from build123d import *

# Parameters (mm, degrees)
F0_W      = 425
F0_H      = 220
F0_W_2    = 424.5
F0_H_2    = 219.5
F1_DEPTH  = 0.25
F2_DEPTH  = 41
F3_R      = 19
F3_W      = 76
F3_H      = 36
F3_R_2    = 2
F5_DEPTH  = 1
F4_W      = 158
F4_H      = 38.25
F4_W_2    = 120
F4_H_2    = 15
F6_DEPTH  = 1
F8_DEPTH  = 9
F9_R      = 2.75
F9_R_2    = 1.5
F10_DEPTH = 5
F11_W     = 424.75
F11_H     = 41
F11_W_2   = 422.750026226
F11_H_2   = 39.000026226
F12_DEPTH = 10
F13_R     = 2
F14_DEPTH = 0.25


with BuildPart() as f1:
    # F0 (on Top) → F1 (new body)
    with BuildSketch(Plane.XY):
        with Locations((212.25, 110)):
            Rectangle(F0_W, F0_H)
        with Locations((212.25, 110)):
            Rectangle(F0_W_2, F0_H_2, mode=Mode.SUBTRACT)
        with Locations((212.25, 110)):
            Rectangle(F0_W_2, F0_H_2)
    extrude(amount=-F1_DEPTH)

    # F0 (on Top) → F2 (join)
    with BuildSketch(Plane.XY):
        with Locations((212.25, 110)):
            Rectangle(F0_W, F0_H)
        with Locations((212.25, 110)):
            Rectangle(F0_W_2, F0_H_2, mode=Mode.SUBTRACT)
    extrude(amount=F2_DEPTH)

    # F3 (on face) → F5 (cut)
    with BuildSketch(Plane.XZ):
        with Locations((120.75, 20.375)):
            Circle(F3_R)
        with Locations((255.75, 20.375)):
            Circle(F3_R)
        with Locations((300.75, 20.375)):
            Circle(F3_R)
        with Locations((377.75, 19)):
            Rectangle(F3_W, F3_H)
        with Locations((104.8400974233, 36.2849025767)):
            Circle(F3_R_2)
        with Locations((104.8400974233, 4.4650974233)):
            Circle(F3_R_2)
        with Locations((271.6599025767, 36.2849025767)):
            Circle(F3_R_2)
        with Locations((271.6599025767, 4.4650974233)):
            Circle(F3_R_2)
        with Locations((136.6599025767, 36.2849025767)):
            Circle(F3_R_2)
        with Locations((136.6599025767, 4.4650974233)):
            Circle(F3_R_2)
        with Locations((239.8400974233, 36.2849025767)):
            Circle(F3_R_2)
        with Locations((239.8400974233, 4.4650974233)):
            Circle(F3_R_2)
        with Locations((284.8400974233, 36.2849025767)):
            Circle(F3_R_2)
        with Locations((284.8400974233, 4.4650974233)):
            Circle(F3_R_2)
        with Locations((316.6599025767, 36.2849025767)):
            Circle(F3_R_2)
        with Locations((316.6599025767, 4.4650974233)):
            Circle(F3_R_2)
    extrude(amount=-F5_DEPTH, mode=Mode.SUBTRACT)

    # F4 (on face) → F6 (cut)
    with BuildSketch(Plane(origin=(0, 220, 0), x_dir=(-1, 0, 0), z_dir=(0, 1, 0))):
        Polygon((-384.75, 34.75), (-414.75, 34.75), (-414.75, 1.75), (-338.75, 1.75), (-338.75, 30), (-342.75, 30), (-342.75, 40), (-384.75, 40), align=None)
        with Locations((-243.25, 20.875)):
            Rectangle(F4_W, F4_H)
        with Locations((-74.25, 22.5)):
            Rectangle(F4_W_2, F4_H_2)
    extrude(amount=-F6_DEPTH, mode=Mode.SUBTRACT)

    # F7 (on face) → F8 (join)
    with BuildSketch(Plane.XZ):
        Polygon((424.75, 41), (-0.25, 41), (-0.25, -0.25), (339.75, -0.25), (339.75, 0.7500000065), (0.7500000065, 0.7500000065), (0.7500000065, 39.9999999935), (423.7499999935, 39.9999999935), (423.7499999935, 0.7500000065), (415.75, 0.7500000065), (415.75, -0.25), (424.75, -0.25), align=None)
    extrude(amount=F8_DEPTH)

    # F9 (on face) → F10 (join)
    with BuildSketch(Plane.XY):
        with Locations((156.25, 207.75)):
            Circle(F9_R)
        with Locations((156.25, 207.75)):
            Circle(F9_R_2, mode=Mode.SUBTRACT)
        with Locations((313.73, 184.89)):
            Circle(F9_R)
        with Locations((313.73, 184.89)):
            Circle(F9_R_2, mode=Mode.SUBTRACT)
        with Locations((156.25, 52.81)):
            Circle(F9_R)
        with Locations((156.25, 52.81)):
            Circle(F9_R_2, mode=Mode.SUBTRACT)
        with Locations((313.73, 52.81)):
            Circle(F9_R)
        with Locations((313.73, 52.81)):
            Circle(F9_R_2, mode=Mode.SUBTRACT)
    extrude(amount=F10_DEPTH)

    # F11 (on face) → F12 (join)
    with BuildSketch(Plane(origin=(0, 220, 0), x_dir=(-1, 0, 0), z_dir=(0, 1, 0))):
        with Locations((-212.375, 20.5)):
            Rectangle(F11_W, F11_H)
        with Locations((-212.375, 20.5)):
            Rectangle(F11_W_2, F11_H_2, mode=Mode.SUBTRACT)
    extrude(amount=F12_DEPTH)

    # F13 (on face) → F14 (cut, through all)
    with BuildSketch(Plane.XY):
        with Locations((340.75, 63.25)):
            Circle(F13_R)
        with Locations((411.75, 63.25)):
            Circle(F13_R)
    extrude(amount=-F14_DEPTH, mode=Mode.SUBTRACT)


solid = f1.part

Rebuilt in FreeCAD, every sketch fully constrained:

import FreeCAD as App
import Part
import Sketcher
from FreeCAD import Vector
Q = App.Units.Quantity

doc = App.newDocument("Part")
body = doc.addObject("PartDesign::Body", "Body")

sketch1 = doc.addObject("Sketcher::SketchObject", "Sketch")
body.addObject(sketch1)
sketch1.AttachmentSupport = (doc.XY_Plane, [""])
sketch1.MapMode = "FlatFace"
sketch1.addGeometry([
    Part.LineSegment(Vector(-0.25, 220, 0), Vector(-0.25, 0, 0)),
    Part.LineSegment(Vector(-0.25, 0, 0), Vector(424.75, 0, 0)),
    Part.LineSegment(Vector(424.75, 0, 0), Vector(424.75, 220, 0)),
    Part.LineSegment(Vector(424.75, 220, 0), Vector(-0.25, 220, 0)),
], False)
sketch1.addConstraint([
    Sketcher.Constraint("Coincident", 0, 2, 1, 1),
    Sketcher.Constraint("Coincident", 1, 2, 2, 1),
    Sketcher.Constraint("Coincident", 2, 2, 3, 1),
    Sketcher.Constraint("Coincident", 3, 2, 0, 1),
    Sketcher.Constraint("Vertical", 0),
    Sketcher.Constraint("Horizontal", 1),
    Sketcher.Constraint("Vertical", 2),
    Sketcher.Constraint("Horizontal", 3),
    Sketcher.Constraint("PointOnObject", 0, 2, -1),
    Sketcher.Constraint("DistanceX", 1, 1, 1, 2, Q("425 mm")),
    Sketcher.Constraint("DistanceY", 0, 2, 0, 1, Q("220 mm")),
    Sketcher.Constraint("DistanceX", 0, 2, -1, 1, Q("0.25 mm")),
])
pad1 = doc.addObject("PartDesign::Pad", "Pad")
body.addObject(pad1)
pad1.Profile = sketch1
pad1.Length = 0.25
pad1.Reversed = True

sketch2 = doc.addObject("Sketcher::SketchObject", "Sketch001")
body.addObject(sketch2)
sketch2.AttachmentSupport = (doc.XY_Plane, [""])
sketch2.MapMode = "FlatFace"
sketch2.addGeometry([
    Part.LineSegment(Vector(-0.25, 220, 0), Vector(-0.25, 0, 0)),
    Part.LineSegment(Vector(-0.25, 0, 0), Vector(424.75, 0, 0)),
    Part.LineSegment(Vector(424.75, 0, 0), Vector(424.75, 220, 0)),
    Part.LineSegment(Vector(424.75, 220, 0), Vector(-0.25, 220, 0)),
    Part.LineSegment(Vector(424.5, 0.25, 0), Vector(0, 0.25, 0)),
    Part.LineSegment(Vector(0, 0.25, 0), Vector(0, 219.75, 0)),
    Part.LineSegment(Vector(0, 219.75, 0), Vector(424.5, 219.75, 0)),
    Part.LineSegment(Vector(424.5, 219.75, 0), Vector(424.5, 0.25, 0)),
], False)
sketch2.addConstraint([
    Sketcher.Constraint("Coincident", 0, 2, 1, 1),
    Sketcher.Constraint("Coincident", 1, 2, 2, 1),
    Sketcher.Constraint("Coincident", 2, 2, 3, 1),
    Sketcher.Constraint("Coincident", 3, 2, 0, 1),
    Sketcher.Constraint("Coincident", 4, 2, 5, 1),
    Sketcher.Constraint("Coincident", 5, 2, 6, 1),
    Sketcher.Constraint("Coincident", 6, 2, 7, 1),
    Sketcher.Constraint("Coincident", 7, 2, 4, 1),
    Sketcher.Constraint("Vertical", 0),
    Sketcher.Constraint("Horizontal", 1),
    Sketcher.Constraint("Vertical", 2),
    Sketcher.Constraint("Horizontal", 3),
    Sketcher.Constraint("Horizontal", 4),
    Sketcher.Constraint("Vertical", 5),
    Sketcher.Constraint("Horizontal", 6),
    Sketcher.Constraint("Vertical", 7),
    Sketcher.Constraint("PointOnObject", 0, 2, -1),
    Sketcher.Constraint("PointOnObject", 4, 2, -2),
    Sketcher.Constraint("DistanceX", 1, 1, 1, 2, Q("425 mm")),
    Sketcher.Constraint("DistanceY", 0, 2, 0, 1, Q("220 mm")),
    Sketcher.Constraint("DistanceX", 4, 2, 4, 1, Q("424.5 mm")),
    Sketcher.Constraint("DistanceY", 5, 1, 5, 2, Q("219.5 mm")),
    Sketcher.Constraint("DistanceX", 0, 2, -1, 1, Q("0.25 mm")),
    Sketcher.Constraint("DistanceY", -1, 1, 4, 2, Q("0.25 mm")),
])
pad2 = doc.addObject("PartDesign::Pad", "Pad001")
body.addObject(pad2)
pad2.Profile = sketch2
pad2.Length = 41

sketch3 = doc.addObject("Sketcher::SketchObject", "Sketch002")
body.addObject(sketch3)
sketch3.AttachmentSupport = (doc.XZ_Plane, [""])
sketch3.MapMode = "FlatFace"
sketch3.addGeometry([
    Part.Circle(Vector(120.75, 20.375, 0), Vector(0, 0, 1), 19),
    Part.Circle(Vector(255.75, 20.375, 0), Vector(0, 0, 1), 19),
    Part.Circle(Vector(300.75, 20.375, 0), Vector(0, 0, 1), 19),
    Part.LineSegment(Vector(339.75, 37, 0), Vector(339.75, 1, 0)),
    Part.LineSegment(Vector(339.75, 1, 0), Vector(415.75, 1, 0)),
    Part.LineSegment(Vector(415.75, 1, 0), Vector(415.75, 37, 0)),
    Part.LineSegment(Vector(415.75, 37, 0), Vector(339.75, 37, 0)),
    Part.Circle(Vector(104.840097, 36.284903, 0), Vector(0, 0, 1), 2),
    Part.Circle(Vector(104.840097, 4.465097, 0), Vector(0, 0, 1), 2),
    Part.Circle(Vector(271.659903, 36.284903, 0), Vector(0, 0, 1), 2),
    Part.Circle(Vector(271.659903, 4.465097, 0), Vector(0, 0, 1), 2),
    Part.Circle(Vector(136.659903, 36.284903, 0), Vector(0, 0, 1), 2),
    Part.Circle(Vector(136.659903, 4.465097, 0), Vector(0, 0, 1), 2),
    Part.Circle(Vector(239.840097, 36.284903, 0), Vector(0, 0, 1), 2),
    Part.Circle(Vector(239.840097, 4.465097, 0), Vector(0, 0, 1), 2),
    Part.Circle(Vector(284.840097, 36.284903, 0), Vector(0, 0, 1), 2),
    Part.Circle(Vector(284.840097, 4.465097, 0), Vector(0, 0, 1), 2),
    Part.Circle(Vector(316.659903, 36.284903, 0), Vector(0, 0, 1), 2),
    Part.Circle(Vector(316.659903, 4.465097, 0), Vector(0, 0, 1), 2),
], False)
sketch3.addConstraint([
    Sketcher.Constraint("Coincident", 3, 2, 4, 1),
    Sketcher.Constraint("Coincident", 4, 2, 5, 1),
    Sketcher.Constraint("Coincident", 5, 2, 6, 1),
    Sketcher.Constraint("Coincident", 6, 2, 3, 1),
    Sketcher.Constraint("Vertical", 3),
    Sketcher.Constraint("Horizontal", 4),
    Sketcher.Constraint("Vertical", 5),
    Sketcher.Constraint("Horizontal", 6),
    Sketcher.Constraint("Equal", 0, 1),
    Sketcher.Constraint("Equal", 1, 2),
    Sketcher.Constraint("Equal", 7, 8),
    Sketcher.Constraint("Equal", 8, 9),
    Sketcher.Constraint("Equal", 9, 10),
    Sketcher.Constraint("Equal", 10, 11),
    Sketcher.Constraint("Equal", 11, 12),
    Sketcher.Constraint("Equal", 12, 13),
    Sketcher.Constraint("Equal", 13, 14),
    Sketcher.Constraint("Equal", 14, 15),
    Sketcher.Constraint("Equal", 15, 16),
    Sketcher.Constraint("Equal", 16, 17),
    Sketcher.Constraint("Equal", 17, 18),
    Sketcher.Constraint("Horizontal", 0, 3, 1, 3),
    Sketcher.Constraint("Horizontal", 1, 3, 2, 3),
    Sketcher.Constraint("Horizontal", 7, 3, 9, 3),
    Sketcher.Constraint("Horizontal", 8, 3, 10, 3),
    Sketcher.Constraint("Horizontal", 9, 3, 11, 3),
    Sketcher.Constraint("Horizontal", 10, 3, 12, 3),
    Sketcher.Constraint("Horizontal", 11, 3, 13, 3),
    Sketcher.Constraint("Horizontal", 12, 3, 14, 3),
    Sketcher.Constraint("Horizontal", 13, 3, 15, 3),
    Sketcher.Constraint("Horizontal", 14, 3, 16, 3),
    Sketcher.Constraint("Horizontal", 15, 3, 17, 3),
    Sketcher.Constraint("Horizontal", 16, 3, 18, 3),
    Sketcher.Constraint("Vertical", 7, 3, 8, 3),
    Sketcher.Constraint("Vertical", 9, 3, 10, 3),
    Sketcher.Constraint("Vertical", 11, 3, 12, 3),
    Sketcher.Constraint("Vertical", 13, 3, 14, 3),
    Sketcher.Constraint("Vertical", 15, 3, 16, 3),
    Sketcher.Constraint("Vertical", 17, 3, 18, 3),
    Sketcher.Constraint("Diameter", 0, Q("38 mm")),
    Sketcher.Constraint("Diameter", 7, Q("4 mm")),
    Sketcher.Constraint("DistanceX", 4, 1, 4, 2, Q("76 mm")),
    Sketcher.Constraint("DistanceY", 3, 2, 3, 1, Q("36 mm")),
    Sketcher.Constraint("DistanceY", -1, 1, 3, 2, Q("1 mm")),
    Sketcher.Constraint("DistanceX", 0, 3, 1, 3, Q("135 mm")),
    Sketcher.Constraint("DistanceX", 1, 3, 2, 3, Q("45 mm")),
    Sketcher.Constraint("DistanceX", 11, 3, 9, 3, Q("135 mm")),
    Sketcher.Constraint("DistanceX", 13, 3, 15, 3, Q("45 mm")),
    Sketcher.Constraint("DistanceX", 9, 3, 17, 3, Q("45 mm")),
    Sketcher.Constraint("DistanceX", 2, 3, 3, 2, Q("39 mm")),
    Sketcher.Constraint("DistanceX", -1, 1, 0, 3, Q("120.75 mm")),
    Sketcher.Constraint("DistanceY", -1, 1, 0, 3, Q("20.375 mm")),
    Sketcher.Constraint("DistanceX", -1, 1, 7, 3, Q("104.840097 mm")),
    Sketcher.Constraint("DistanceY", -1, 1, 7, 3, Q("36.284903 mm")),
    Sketcher.Constraint("DistanceY", -1, 1, 8, 3, Q("4.465097 mm")),
    Sketcher.Constraint("DistanceX", -1, 1, 9, 3, Q("271.659903 mm")),
    Sketcher.Constraint("DistanceX", -1, 1, 13, 3, Q("239.840097 mm")),
])
pocket1 = doc.addObject("PartDesign::Pocket", "Pocket")
body.addObject(pocket1)
pocket1.Profile = sketch3
pocket1.Length = 1

sketch4 = doc.addObject("Sketcher::SketchObject", "Sketch003")
body.addObject(sketch4)
sketch4.AttachmentSupport = (doc.XZ_Plane, [""])
sketch4.MapMode = "FlatFace"
sketch4.AttachmentOffset = App.Placement(Vector(0, 0, -220), App.Rotation())
sketch4.addGeometry([
    Part.LineSegment(Vector(384.75, 34.75, 0), Vector(414.75, 34.75, 0)),
    Part.LineSegment(Vector(414.75, 34.75, 0), Vector(414.75, 1.75, 0)),
    Part.LineSegment(Vector(414.75, 1.75, 0), Vector(338.75, 1.75, 0)),
    Part.LineSegment(Vector(338.75, 1.75, 0), Vector(338.75, 30, 0)),
    Part.LineSegment(Vector(338.75, 30, 0), Vector(342.75, 30, 0)),
    Part.LineSegment(Vector(342.75, 30, 0), Vector(342.75, 40, 0)),
    Part.LineSegment(Vector(342.75, 40, 0), Vector(384.75, 40, 0)),
    Part.LineSegment(Vector(384.75, 40, 0), Vector(384.75, 34.75, 0)),
    Part.LineSegment(Vector(322.25, 40, 0), Vector(322.25, 1.75, 0)),
    Part.LineSegment(Vector(322.25, 1.75, 0), Vector(164.25, 1.75, 0)),
    Part.LineSegment(Vector(164.25, 1.75, 0), Vector(164.25, 40, 0)),
    Part.LineSegment(Vector(164.25, 40, 0), Vector(322.25, 40, 0)),
    Part.LineSegment(Vector(134.25, 30, 0), Vector(134.25, 15, 0)),
    Part.LineSegment(Vector(134.25, 15, 0), Vector(14.25, 15, 0)),
    Part.LineSegment(Vector(14.25, 15, 0), Vector(14.25, 30, 0)),
    Part.LineSegment(Vector(14.25, 30, 0), Vector(134.25, 30, 0)),
], False)
sketch4.addConstraint([
    Sketcher.Constraint("Coincident", 0, 2, 1, 1),
    Sketcher.Constraint("Coincident", 1, 2, 2, 1),
    Sketcher.Constraint("Coincident", 2, 2, 3, 1),
    Sketcher.Constraint("Coincident", 3, 2, 4, 1),
    Sketcher.Constraint("Coincident", 4, 2, 5, 1),
    Sketcher.Constraint("Coincident", 5, 2, 6, 1),
    Sketcher.Constraint("Coincident", 6, 2, 7, 1),
    Sketcher.Constraint("Coincident", 7, 2, 0, 1),
    Sketcher.Constraint("Coincident", 8, 2, 9, 1),
    Sketcher.Constraint("Coincident", 9, 2, 10, 1),
    Sketcher.Constraint("Coincident", 10, 2, 11, 1),
    Sketcher.Constraint("Coincident", 11, 2, 8, 1),
    Sketcher.Constraint("Coincident", 12, 2, 13, 1),
    Sketcher.Constraint("Coincident", 13, 2, 14, 1),
    Sketcher.Constraint("Coincident", 14, 2, 15, 1),
    Sketcher.Constraint("Coincident", 15, 2, 12, 1),
    Sketcher.Constraint("Horizontal", 0),
    Sketcher.Constraint("Vertical", 1),
    Sketcher.Constraint("Horizontal", 2),
    Sketcher.Constraint("Vertical", 3),
    Sketcher.Constraint("Horizontal", 4),
    Sketcher.Constraint("Vertical", 5),
    Sketcher.Constraint("Horizontal", 6),
    Sketcher.Constraint("Vertical", 7),
    Sketcher.Constraint("Vertical", 8),
    Sketcher.Constraint("Horizontal", 9),
    Sketcher.Constraint("Vertical", 10),
    Sketcher.Constraint("Horizontal", 11),
    Sketcher.Constraint("Vertical", 12),
    Sketcher.Constraint("Horizontal", 13),
    Sketcher.Constraint("Vertical", 14),
    Sketcher.Constraint("Horizontal", 15),
    Sketcher.Constraint("Horizontal", 2, 2, 8, 2),
    Sketcher.Constraint("Horizontal", 6, 2, 10, 2),
    Sketcher.Constraint("Horizontal", 4, 2, 14, 2),
    Sketcher.Constraint("DistanceX", 0, 1, 0, 2, Q("30 mm")),
    Sketcher.Constraint("DistanceX", 2, 2, 2, 1, Q("76 mm")),
    Sketcher.Constraint("DistanceX", 4, 1, 4, 2, Q("4 mm")),
    Sketcher.Constraint("DistanceX", 9, 2, 9, 1, Q("158 mm")),
    Sketcher.Constraint("DistanceX", 13, 2, 13, 1, Q("120 mm")),
    Sketcher.Constraint("DistanceY", 1, 2, 1, 1, Q("33 mm")),
    Sketcher.Constraint("DistanceY", 5, 1, 5, 2, Q("10 mm")),
    Sketcher.Constraint("DistanceY", 12, 2, 12, 1, Q("15 mm")),
    Sketcher.Constraint("DistanceY", -1, 1, 3, 2, Q("30 mm")),
    Sketcher.Constraint("DistanceX", 12, 2, 9, 2, Q("30 mm")),
    Sketcher.Constraint("DistanceY", 3, 1, 3, 2, Q("28.25 mm")),
    Sketcher.Constraint("DistanceX", 8, 2, 2, 2, Q("16.5 mm")),
    Sketcher.Constraint("DistanceX", -1, 1, 0, 2, Q("414.75 mm")),
])
pocket2 = doc.addObject("PartDesign::Pocket", "Pocket001")
body.addObject(pocket2)
pocket2.Profile = sketch4
pocket2.Length = 1
pocket2.Reversed = True

sketch5 = doc.addObject("Sketcher::SketchObject", "Sketch004")
body.addObject(sketch5)
sketch5.AttachmentSupport = (doc.XZ_Plane, [""])
sketch5.MapMode = "FlatFace"
sketch5.addGeometry([
    Part.LineSegment(Vector(424.75, 41, 0), Vector(-0.25, 41, 0)),
    Part.LineSegment(Vector(-0.25, 41, 0), Vector(-0.25, -0.25, 0)),
    Part.LineSegment(Vector(-0.25, -0.25, 0), Vector(339.75, -0.25, 0)),
    Part.LineSegment(Vector(339.75, -0.25, 0), Vector(339.75, 0.75, 0)),
    Part.LineSegment(Vector(339.75, 0.75, 0), Vector(0.75, 0.75, 0)),
    Part.LineSegment(Vector(0.75, 0.75, 0), Vector(0.75, 40, 0)),
    Part.LineSegment(Vector(0.75, 40, 0), Vector(423.75, 40, 0)),
    Part.LineSegment(Vector(423.75, 40, 0), Vector(423.75, 0.75, 0)),
    Part.LineSegment(Vector(423.75, 0.75, 0), Vector(415.75, 0.75, 0)),
    Part.LineSegment(Vector(415.75, 0.75, 0), Vector(415.75, -0.25, 0)),
    Part.LineSegment(Vector(415.75, -0.25, 0), Vector(424.75, -0.25, 0)),
    Part.LineSegment(Vector(424.75, -0.25, 0), Vector(424.75, 41, 0)),
], False)
sketch5.addConstraint([
    Sketcher.Constraint("Coincident", 0, 2, 1, 1),
    Sketcher.Constraint("Coincident", 1, 2, 2, 1),
    Sketcher.Constraint("Coincident", 2, 2, 3, 1),
    Sketcher.Constraint("Coincident", 3, 2, 4, 1),
    Sketcher.Constraint("Coincident", 4, 2, 5, 1),
    Sketcher.Constraint("Coincident", 5, 2, 6, 1),
    Sketcher.Constraint("Coincident", 6, 2, 7, 1),
    Sketcher.Constraint("Coincident", 7, 2, 8, 1),
    Sketcher.Constraint("Coincident", 8, 2, 9, 1),
    Sketcher.Constraint("Coincident", 9, 2, 10, 1),
    Sketcher.Constraint("Coincident", 10, 2, 11, 1),
    Sketcher.Constraint("Coincident", 11, 2, 0, 1),
    Sketcher.Constraint("Horizontal", 0),
    Sketcher.Constraint("Vertical", 1),
    Sketcher.Constraint("Horizontal", 2),
    Sketcher.Constraint("Vertical", 3),
    Sketcher.Constraint("Horizontal", 4),
    Sketcher.Constraint("Vertical", 5),
    Sketcher.Constraint("Horizontal", 6),
    Sketcher.Constraint("Vertical", 7),
    Sketcher.Constraint("Horizontal", 8),
    Sketcher.Constraint("Vertical", 9),
    Sketcher.Constraint("Horizontal", 10),
    Sketcher.Constraint("Vertical", 11),
    Sketcher.Constraint("Horizontal", 4, 2, 7, 2),
    Sketcher.Constraint("Horizontal", 2, 2, 9, 2),
    Sketcher.Constraint("DistanceX", 0, 2, 0, 1, Q("425 mm")),
    Sketcher.Constraint("DistanceX", 2, 1, 2, 2, Q("340 mm")),
    Sketcher.Constraint("DistanceX", 4, 2, 4, 1, Q("339 mm")),
    Sketcher.Constraint("DistanceX", 6, 1, 6, 2, Q("423 mm")),
    Sketcher.Constraint("DistanceX", 8, 2, 8, 1, Q("8 mm")),
    Sketcher.Constraint("DistanceY", 3, 1, 3, 2, Q("1 mm")),
    Sketcher.Constraint("DistanceY", -1, 1, 0, 2, Q("41 mm")),
    Sketcher.Constraint("DistanceY", -1, 1, 5, 2, Q("40 mm")),
    Sketcher.Constraint("DistanceY", 1, 2, 1, 1, Q("41.25 mm")),
    Sketcher.Constraint("DistanceX", 0, 2, -1, 1, Q("0.25 mm")),
])
pad3 = doc.addObject("PartDesign::Pad", "Pad002")
body.addObject(pad3)
pad3.Profile = sketch5
pad3.Length = 9

sketch6 = doc.addObject("Sketcher::SketchObject", "Sketch005")
body.addObject(sketch6)
sketch6.AttachmentSupport = (doc.XY_Plane, [""])
sketch6.MapMode = "FlatFace"
sketch6.addGeometry([
    Part.Circle(Vector(156.25, 207.75, 0), Vector(0, 0, 1), 2.75),
    Part.Circle(Vector(156.25, 207.75, 0), Vector(0, 0, 1), 1.5),
    Part.Circle(Vector(313.73, 184.89, 0), Vector(0, 0, 1), 2.75),
    Part.Circle(Vector(313.73, 184.89, 0), Vector(0, 0, 1), 1.5),
    Part.Circle(Vector(156.25, 52.81, 0), Vector(0, 0, 1), 2.75),
    Part.Circle(Vector(156.25, 52.81, 0), Vector(0, 0, 1), 1.5),
    Part.Circle(Vector(313.73, 52.81, 0), Vector(0, 0, 1), 2.75),
    Part.Circle(Vector(313.73, 52.81, 0), Vector(0, 0, 1), 1.5),
], False)
sketch6.addConstraint([
    Sketcher.Constraint("Coincident", 1, 3, 0, 3),
    Sketcher.Constraint("Coincident", 3, 3, 2, 3),
    Sketcher.Constraint("Coincident", 5, 3, 4, 3),
    Sketcher.Constraint("Coincident", 7, 3, 6, 3),
    Sketcher.Constraint("Equal", 0, 2),
    Sketcher.Constraint("Equal", 1, 3),
    Sketcher.Constraint("Equal", 2, 4),
    Sketcher.Constraint("Equal", 3, 5),
    Sketcher.Constraint("Equal", 4, 6),
    Sketcher.Constraint("Equal", 5, 7),
    Sketcher.Constraint("Horizontal", 5, 3, 6, 3),
    Sketcher.Constraint("Vertical", 1, 3, 4, 3),
    Sketcher.Constraint("Vertical", 3, 3, 6, 3),
    Sketcher.Constraint("Diameter", 1, Q("3 mm")),
    Sketcher.Constraint("Diameter", 0, Q("5.5 mm")),
    Sketcher.Constraint("DistanceX", -1, 1, 0, 3, Q("156.25 mm")),
    Sketcher.Constraint("DistanceY", -1, 1, 0, 3, Q("207.75 mm")),
    Sketcher.Constraint("DistanceX", -1, 1, 2, 3, Q("313.73 mm")),
    Sketcher.Constraint("DistanceY", -1, 1, 2, 3, Q("184.89 mm")),
    Sketcher.Constraint("DistanceY", -1, 1, 4, 3, Q("52.81 mm")),
])
pad4 = doc.addObject("PartDesign::Pad", "Pad003")
body.addObject(pad4)
pad4.Profile = sketch6
pad4.Length = 5

sketch7 = doc.addObject("Sketcher::SketchObject", "Sketch006")
body.addObject(sketch7)
sketch7.AttachmentSupport = (doc.XZ_Plane, [""])
sketch7.MapMode = "FlatFace"
sketch7.AttachmentOffset = App.Placement(Vector(0, 0, -220), App.Rotation())
sketch7.addGeometry([
    Part.LineSegment(Vector(424.75, 41, 0), Vector(424.75, 0, 0)),
    Part.LineSegment(Vector(424.75, 0, 0), Vector(0, 0, 0)),
    Part.LineSegment(Vector(0, 0, 0), Vector(0, 41, 0)),
    Part.LineSegment(Vector(0, 41, 0), Vector(424.75, 41, 0)),
    Part.LineSegment(Vector(0.999987, 0.999987, 0), Vector(423.750013, 0.999987, 0)),
    Part.LineSegment(Vector(423.750013, 0.999987, 0), Vector(423.750013, 40.000013, 0)),
    Part.LineSegment(Vector(423.750013, 40.000013, 0), Vector(0.999987, 40.000013, 0)),
    Part.LineSegment(Vector(0.999987, 40.000013, 0), Vector(0.999987, 0.999987, 0)),
], False)
sketch7.addConstraint([
    Sketcher.Constraint("Coincident", 0, 2, 1, 1),
    Sketcher.Constraint("Coincident", 1, 2, 2, 1),
    Sketcher.Constraint("Coincident", 2, 2, 3, 1),
    Sketcher.Constraint("Coincident", 3, 2, 0, 1),
    Sketcher.Constraint("Coincident", 4, 2, 5, 1),
    Sketcher.Constraint("Coincident", 5, 2, 6, 1),
    Sketcher.Constraint("Coincident", 6, 2, 7, 1),
    Sketcher.Constraint("Coincident", 7, 2, 4, 1),
    Sketcher.Constraint("Vertical", 0),
    Sketcher.Constraint("Horizontal", 1),
    Sketcher.Constraint("Vertical", 2),
    Sketcher.Constraint("Horizontal", 3),
    Sketcher.Constraint("Horizontal", 4),
    Sketcher.Constraint("Vertical", 5),
    Sketcher.Constraint("Horizontal", 6),
    Sketcher.Constraint("Vertical", 7),
    Sketcher.Constraint("Coincident", 1, 2, -1, 1),
    Sketcher.Constraint("DistanceY", 0, 2, 0, 1, Q("41 mm")),
    Sketcher.Constraint("DistanceX", 1, 2, 1, 1, Q("424.75 mm")),
    Sketcher.Constraint("DistanceX", 4, 1, 4, 2, Q("422.750026 mm")),
    Sketcher.Constraint("DistanceY", 5, 1, 5, 2, Q("39.000026 mm")),
    Sketcher.Constraint("DistanceX", -1, 1, 4, 2, Q("423.750013 mm")),
    Sketcher.Constraint("DistanceY", -1, 1, 4, 2, Q("0.999987 mm")),
])
pad5 = doc.addObject("PartDesign::Pad", "Pad004")
body.addObject(pad5)
pad5.Profile = sketch7
pad5.Length = 10
pad5.Reversed = True

sketch8 = doc.addObject("Sketcher::SketchObject", "Sketch007")
body.addObject(sketch8)
sketch8.AttachmentSupport = (doc.XY_Plane, [""])
sketch8.MapMode = "FlatFace"
sketch8.addGeometry([
    Part.Circle(Vector(340.75, 63.25, 0), Vector(0, 0, 1), 2),
    Part.Circle(Vector(411.75, 63.25, 0), Vector(0, 0, 1), 2),
], False)
sketch8.addConstraint([
    Sketcher.Constraint("Equal", 0, 1),
    Sketcher.Constraint("Horizontal", 0, 3, 1, 3),
    Sketcher.Constraint("Diameter", 0, Q("4 mm")),
    Sketcher.Constraint("DistanceX", 0, 3, 1, 3, Q("71 mm")),
    Sketcher.Constraint("DistanceX", -1, 1, 0, 3, Q("340.75 mm")),
    Sketcher.Constraint("DistanceY", -1, 1, 0, 3, Q("63.25 mm")),
])
pocket3 = doc.addObject("PartDesign::Pocket", "Pocket002")
body.addObject(pocket3)
pocket3.Profile = sketch8
pocket3.Type = "ThroughAll"

doc.recompute()
